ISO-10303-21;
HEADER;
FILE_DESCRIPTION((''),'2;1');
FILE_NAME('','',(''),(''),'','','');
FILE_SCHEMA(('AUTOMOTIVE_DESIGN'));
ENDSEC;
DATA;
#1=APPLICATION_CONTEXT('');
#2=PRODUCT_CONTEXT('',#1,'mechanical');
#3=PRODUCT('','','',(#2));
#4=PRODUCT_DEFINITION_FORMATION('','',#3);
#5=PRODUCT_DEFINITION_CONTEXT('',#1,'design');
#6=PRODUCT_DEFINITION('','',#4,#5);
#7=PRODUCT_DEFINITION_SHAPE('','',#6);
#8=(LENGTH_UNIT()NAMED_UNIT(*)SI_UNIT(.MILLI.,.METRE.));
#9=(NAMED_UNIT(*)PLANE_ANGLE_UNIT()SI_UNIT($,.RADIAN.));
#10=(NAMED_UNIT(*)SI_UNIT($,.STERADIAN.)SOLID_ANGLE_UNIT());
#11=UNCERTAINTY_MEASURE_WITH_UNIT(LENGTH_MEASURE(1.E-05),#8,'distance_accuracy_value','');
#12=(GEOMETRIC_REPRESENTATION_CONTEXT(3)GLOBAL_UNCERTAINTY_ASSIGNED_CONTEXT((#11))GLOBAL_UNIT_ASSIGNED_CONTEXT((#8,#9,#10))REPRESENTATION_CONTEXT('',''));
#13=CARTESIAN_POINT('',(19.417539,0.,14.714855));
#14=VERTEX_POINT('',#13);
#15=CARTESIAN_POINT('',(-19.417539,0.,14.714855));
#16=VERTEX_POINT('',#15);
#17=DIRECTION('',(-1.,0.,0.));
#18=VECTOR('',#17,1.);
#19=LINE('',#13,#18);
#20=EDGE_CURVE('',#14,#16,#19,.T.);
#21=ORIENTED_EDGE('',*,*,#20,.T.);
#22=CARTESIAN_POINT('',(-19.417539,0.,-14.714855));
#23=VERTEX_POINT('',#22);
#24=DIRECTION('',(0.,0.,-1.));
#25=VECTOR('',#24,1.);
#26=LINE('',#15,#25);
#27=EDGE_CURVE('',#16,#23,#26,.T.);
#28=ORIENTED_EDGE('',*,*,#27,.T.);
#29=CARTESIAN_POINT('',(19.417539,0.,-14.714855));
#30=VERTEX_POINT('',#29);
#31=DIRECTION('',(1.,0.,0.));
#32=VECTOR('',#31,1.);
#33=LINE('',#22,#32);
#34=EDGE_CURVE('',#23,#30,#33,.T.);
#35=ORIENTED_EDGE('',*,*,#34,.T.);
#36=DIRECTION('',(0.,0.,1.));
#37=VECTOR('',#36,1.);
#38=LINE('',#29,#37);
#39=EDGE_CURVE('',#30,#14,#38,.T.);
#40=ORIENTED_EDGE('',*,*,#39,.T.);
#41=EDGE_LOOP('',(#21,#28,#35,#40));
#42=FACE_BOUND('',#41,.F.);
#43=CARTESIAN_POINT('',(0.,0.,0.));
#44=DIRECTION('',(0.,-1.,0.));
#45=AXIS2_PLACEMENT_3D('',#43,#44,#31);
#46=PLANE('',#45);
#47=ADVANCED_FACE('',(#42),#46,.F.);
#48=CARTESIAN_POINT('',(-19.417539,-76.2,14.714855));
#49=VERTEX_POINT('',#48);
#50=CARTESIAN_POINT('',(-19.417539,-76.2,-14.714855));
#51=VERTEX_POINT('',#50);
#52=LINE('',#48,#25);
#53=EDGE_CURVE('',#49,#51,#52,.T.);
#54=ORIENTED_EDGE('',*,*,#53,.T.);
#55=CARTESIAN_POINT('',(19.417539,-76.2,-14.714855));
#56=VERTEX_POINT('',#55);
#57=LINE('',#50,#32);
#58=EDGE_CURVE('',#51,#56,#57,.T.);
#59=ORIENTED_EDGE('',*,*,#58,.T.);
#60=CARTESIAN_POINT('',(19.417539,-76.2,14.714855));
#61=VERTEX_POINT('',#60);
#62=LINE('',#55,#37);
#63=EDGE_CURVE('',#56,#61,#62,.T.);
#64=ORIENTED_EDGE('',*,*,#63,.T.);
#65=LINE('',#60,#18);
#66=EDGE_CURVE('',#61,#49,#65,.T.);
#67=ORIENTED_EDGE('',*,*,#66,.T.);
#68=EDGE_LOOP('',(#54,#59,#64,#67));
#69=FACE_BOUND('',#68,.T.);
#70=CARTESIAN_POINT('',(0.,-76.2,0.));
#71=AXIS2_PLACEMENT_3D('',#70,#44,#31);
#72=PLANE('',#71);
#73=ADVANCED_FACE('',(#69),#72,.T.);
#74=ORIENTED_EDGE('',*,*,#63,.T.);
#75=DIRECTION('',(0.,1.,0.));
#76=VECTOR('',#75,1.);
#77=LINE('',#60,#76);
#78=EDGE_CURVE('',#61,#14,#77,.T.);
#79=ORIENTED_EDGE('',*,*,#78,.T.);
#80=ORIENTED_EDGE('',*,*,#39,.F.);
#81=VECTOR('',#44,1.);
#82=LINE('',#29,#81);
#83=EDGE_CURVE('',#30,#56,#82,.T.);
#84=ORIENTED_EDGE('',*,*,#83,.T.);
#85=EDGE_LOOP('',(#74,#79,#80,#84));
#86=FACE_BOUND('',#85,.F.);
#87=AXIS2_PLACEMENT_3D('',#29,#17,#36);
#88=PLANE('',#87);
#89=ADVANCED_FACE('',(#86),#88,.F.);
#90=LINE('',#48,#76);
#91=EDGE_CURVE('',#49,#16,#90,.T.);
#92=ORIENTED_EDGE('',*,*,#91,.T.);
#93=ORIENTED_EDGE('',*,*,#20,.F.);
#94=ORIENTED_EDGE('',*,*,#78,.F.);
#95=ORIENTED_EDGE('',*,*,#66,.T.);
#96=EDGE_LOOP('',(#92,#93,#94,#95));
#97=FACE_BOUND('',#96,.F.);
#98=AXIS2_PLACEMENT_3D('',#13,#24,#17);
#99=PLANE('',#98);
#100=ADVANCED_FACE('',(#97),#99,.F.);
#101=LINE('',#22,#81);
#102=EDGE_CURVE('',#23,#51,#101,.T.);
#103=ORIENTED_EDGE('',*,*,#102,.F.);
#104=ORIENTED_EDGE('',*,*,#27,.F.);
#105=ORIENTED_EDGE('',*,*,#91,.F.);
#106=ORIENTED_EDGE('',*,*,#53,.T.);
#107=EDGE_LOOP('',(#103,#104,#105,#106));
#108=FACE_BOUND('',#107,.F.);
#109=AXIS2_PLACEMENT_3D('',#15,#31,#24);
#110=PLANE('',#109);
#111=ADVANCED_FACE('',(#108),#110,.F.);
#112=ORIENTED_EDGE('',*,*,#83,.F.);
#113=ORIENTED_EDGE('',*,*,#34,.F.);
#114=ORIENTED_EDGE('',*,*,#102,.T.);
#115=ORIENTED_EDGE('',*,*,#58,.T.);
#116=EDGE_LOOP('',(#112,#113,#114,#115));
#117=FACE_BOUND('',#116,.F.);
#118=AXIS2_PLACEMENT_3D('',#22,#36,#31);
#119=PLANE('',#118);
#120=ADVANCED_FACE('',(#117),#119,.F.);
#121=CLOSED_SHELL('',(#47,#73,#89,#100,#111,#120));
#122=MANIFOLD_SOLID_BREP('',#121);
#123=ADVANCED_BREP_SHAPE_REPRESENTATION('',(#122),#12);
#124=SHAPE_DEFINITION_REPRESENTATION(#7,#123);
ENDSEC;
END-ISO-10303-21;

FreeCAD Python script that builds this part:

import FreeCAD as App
import Part
import Sketcher
from FreeCAD import Vector
Q = App.Units.Quantity


def add_polygon(sketch, points):
    """Adds a closed chain of lines whose ends are joined by coincident constraints."""
    first, n = sketch.GeometryCount, len(points)
    for a, b in zip(points, points[1:] + points[:1]):
        sketch.addGeometry(Part.LineSegment(App.Vector(*a, 0), App.Vector(*b, 0)), False)
    for i in range(n):
        sketch.addConstraint(Sketcher.Constraint("Coincident", first + i, 2, first + (i + 1) % n, 1))

doc = App.newDocument("Part")
body = doc.addObject("PartDesign::Body", "Body")

# Sketch on XZ plane
sketch1 = body.newObject("Sketcher::SketchObject", "Sketch")
sketch1.AttachmentSupport = (doc.getObject("XZ_Plane"), [""])
sketch1.MapMode = "FlatFace"
add_polygon(sketch1, [(-19, -15), (19, -15), (19, 15), (-19, 15)])  # lines 0-3
sketch1.addConstraint([
    Sketcher.Constraint("Horizontal", 0),
    Sketcher.Constraint("Vertical", 1),
    Sketcher.Constraint("Horizontal", 2),
    Sketcher.Constraint("Vertical", 3),
    Sketcher.Constraint("Symmetric", 0, 2, 2, 2, -1, 1),
    Sketcher.Constraint("DistanceX", 0, 1, 0, 2, 38.835078),
    Sketcher.Constraint("DistanceY", 1, 1, 1, 2, 29.42971),
])
pad1 = body.newObject("PartDesign::Pad", "Pad")
pad1.Profile = sketch1
pad1.Length = Q("3 in")

# Sketch on XZ plane
sketch2 = body.newObject("Sketcher::SketchObject", "Sketch001")
sketch2.AttachmentSupport = (doc.getObject("XZ_Plane"), [""])
sketch2.MapMode = "FlatFace"
sketch2.AttachmentOffset = App.Placement(Vector(0, 0, 3 * 25.4), App.Rotation())
add_polygon(sketch2, [(-19, 15), (-19, -15), (19, -15), (19, 15)])  # lines 0-3
sketch2.addConstraint([
    Sketcher.Constraint("Vertical", 0),
    Sketcher.Constraint("Horizontal", 1),
    Sketcher.Constraint("Vertical", 2),
    Sketcher.Constraint("Horizontal", 3),
    Sketcher.Constraint("Symmetric", 0, 2, 2, 2, -1, 1),
    Sketcher.Constraint("DistanceX", 1, 1, 1, 2, 38.835078),
    Sketcher.Constraint("DistanceY", 0, 2, 0, 1, 29.42971),
])
pad2 = body.newObject("PartDesign::Pad", "Pad001")
pad2.Profile = sketch2
pad2.Length = Q("0.5 in")
pad2.Reversed = True

doc.recompute()
